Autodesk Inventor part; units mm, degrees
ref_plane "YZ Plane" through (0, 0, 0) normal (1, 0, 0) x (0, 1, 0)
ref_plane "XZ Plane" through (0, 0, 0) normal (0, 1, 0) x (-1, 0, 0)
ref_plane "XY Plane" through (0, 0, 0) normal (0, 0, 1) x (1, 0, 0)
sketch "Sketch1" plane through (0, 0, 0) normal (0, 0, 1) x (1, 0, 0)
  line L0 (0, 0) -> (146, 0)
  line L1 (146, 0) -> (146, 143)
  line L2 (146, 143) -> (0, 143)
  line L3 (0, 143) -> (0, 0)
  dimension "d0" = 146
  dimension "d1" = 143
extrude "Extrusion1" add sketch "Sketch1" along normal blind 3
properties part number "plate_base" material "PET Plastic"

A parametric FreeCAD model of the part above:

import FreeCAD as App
import Part
import Sketcher
Q = App.Units.Quantity


def add_polygon(sketch, points):
    """Adds a closed chain of lines whose ends are joined by coincident constraints."""
    first, n = sketch.GeometryCount, len(points)
    for a, b in zip(points, points[1:] + points[:1]):
        sketch.addGeometry(Part.LineSegment(App.Vector(*a, 0), App.Vector(*b, 0)), False)
    for i in range(n):
        sketch.addConstraint(Sketcher.Constraint("Coincident", first + i, 2, first + (i + 1) % n, 1))

doc = App.newDocument("Part")
body = doc.addObject("PartDesign::Body", "Body")

# Sketch on XY plane
sketch1 = doc.addObject("Sketcher::SketchObject", "Sketch")
body.addObject(sketch1)
sketch1.AttachmentSupport = (doc.XY_Plane, [""])
sketch1.MapMode = "FlatFace"
add_polygon(sketch1, [(0, 143), (0, 0), (146, 0), (146, 143)])  # lines 0-3
sketch1.addConstraint([
    Sketcher.Constraint("Vertical", 0),
    Sketcher.Constraint("Horizontal", 1),
    Sketcher.Constraint("Vertical", 2),
    Sketcher.Constraint("Horizontal", 3),
    Sketcher.Constraint("Coincident", 0, 2, -1, 1),
    Sketcher.Constraint("DistanceX", 1, 1, 1, 2, Q("146 mm")),
    Sketcher.Constraint("DistanceY", 0, 2, 0, 1, Q("143 mm")),
])
pad1 = doc.addObject("PartDesign::Pad", "Pad")
body.addObject(pad1)
pad1.Profile = sketch1
pad1.Length = 3

doc.recompute()
